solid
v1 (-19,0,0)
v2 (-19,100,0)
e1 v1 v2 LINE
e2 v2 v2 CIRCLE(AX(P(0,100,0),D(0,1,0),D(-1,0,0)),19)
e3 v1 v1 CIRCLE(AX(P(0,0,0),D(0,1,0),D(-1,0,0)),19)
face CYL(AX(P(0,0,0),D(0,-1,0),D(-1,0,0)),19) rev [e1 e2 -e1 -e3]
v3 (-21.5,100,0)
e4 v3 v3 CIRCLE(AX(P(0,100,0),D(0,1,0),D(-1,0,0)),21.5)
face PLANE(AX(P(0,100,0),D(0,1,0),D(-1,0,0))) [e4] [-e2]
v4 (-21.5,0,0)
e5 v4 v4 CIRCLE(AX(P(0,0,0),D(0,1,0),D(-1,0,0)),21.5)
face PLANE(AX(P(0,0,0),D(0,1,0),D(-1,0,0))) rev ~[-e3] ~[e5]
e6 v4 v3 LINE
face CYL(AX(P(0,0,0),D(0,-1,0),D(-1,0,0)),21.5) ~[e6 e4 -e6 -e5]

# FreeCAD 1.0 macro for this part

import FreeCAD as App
import Part
import Sketcher
Q = App.Units.Quantity

doc = App.newDocument("Part")
body = doc.addObject("PartDesign::Body", "Body")

sketch1 = body.newObject("Sketcher::SketchObject", "Sketch")
sketch1.AttachmentSupport = (doc.getObject("XZ_Plane"), [""])
sketch1.MapMode = "FlatFace"
sketch1.addGeometry([
    Part.Circle(App.Vector(0, 0, 0), App.Vector(0, 0, 1), 22),
    Part.Circle(App.Vector(0, 0, 0), App.Vector(0, 0, 1), 19),
], False)
sketch1.addConstraint([
    Sketcher.Constraint("Coincident", 0, 3, -1, 1),
    Sketcher.Constraint("Coincident", 1, 3, -1, 1),
    Sketcher.Constraint("Diameter", 0, Q("43 mm")),
    Sketcher.Constraint("Diameter", 1, Q("38 mm")),
])
pad1 = body.newObject("PartDesign::Pad", "Pad")
pad1.Profile = sketch1
pad1.Length = 100
pad1.Reversed = True

doc.recompute()
